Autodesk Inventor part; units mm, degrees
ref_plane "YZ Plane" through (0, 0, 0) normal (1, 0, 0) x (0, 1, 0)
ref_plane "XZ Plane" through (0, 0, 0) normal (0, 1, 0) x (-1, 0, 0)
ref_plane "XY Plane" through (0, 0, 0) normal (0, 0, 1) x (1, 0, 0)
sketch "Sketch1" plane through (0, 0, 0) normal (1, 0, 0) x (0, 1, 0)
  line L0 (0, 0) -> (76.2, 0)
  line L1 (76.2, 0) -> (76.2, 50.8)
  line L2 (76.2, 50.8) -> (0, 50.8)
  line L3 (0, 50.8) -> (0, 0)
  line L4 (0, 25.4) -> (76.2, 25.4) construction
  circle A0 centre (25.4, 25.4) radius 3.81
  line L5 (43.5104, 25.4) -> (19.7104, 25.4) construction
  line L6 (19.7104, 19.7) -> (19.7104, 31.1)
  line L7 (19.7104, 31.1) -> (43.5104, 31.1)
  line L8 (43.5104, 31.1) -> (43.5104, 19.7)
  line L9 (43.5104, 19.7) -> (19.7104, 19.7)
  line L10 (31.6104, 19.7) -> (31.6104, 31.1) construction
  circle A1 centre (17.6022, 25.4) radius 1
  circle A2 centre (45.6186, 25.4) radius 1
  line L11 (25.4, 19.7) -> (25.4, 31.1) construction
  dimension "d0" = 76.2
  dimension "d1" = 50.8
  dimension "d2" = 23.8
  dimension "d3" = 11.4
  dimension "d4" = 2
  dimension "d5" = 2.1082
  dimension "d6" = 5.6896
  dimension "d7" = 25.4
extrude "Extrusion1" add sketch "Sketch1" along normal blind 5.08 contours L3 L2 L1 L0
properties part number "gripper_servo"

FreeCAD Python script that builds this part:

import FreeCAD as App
import Part
import Sketcher
Q = App.Units.Quantity


def add_polygon(sketch, points):
    """Adds a closed chain of lines whose ends are joined by coincident constraints."""
    first, n = sketch.GeometryCount, len(points)
    for a, b in zip(points, points[1:] + points[:1]):
        sketch.addGeometry(Part.LineSegment(App.Vector(*a, 0), App.Vector(*b, 0)), False)
    for i in range(n):
        sketch.addConstraint(Sketcher.Constraint("Coincident", first + i, 2, first + (i + 1) % n, 1))

doc = App.newDocument("Part")
body = doc.addObject("PartDesign::Body", "Body")

sketch1 = body.newObject("Sketcher::SketchObject", "Sketch")
sketch1.AttachmentSupport = (doc.getObject("YZ_Plane"), [""])
sketch1.MapMode = "FlatFace"
add_polygon(sketch1, [(0, 50.8), (0, 0), (76.2, 0), (76.2, 50.8)])
sketch1.addGeometry(Part.Circle(App.Vector(17.6022, 25.4, 0), App.Vector(0, 0, 1), 1), False)
add_polygon(sketch1, [(43.5104, 19.7), (19.7104, 19.7), (19.7104, 31.1), (43.5104, 31.1)])
sketch1.addGeometry(Part.Circle(App.Vector(45.6186, 25.4, 0), App.Vector(0, 0, 1), 1), False)
sketch1.addConstraint([
    Sketcher.Constraint("Vertical", 0),
    Sketcher.Constraint("Horizontal", 1),
    Sketcher.Constraint("Vertical", 2),
    Sketcher.Constraint("Horizontal", 3),
    Sketcher.Constraint("Horizontal", 5),
    Sketcher.Constraint("Vertical", 6),
    Sketcher.Constraint("Horizontal", 7),
    Sketcher.Constraint("Vertical", 8),
    Sketcher.Constraint("Coincident", 0, 2, -1, 1),
    Sketcher.Constraint("Equal", 4, 9),
    Sketcher.Constraint("Horizontal", 4, 3, 9, 3),
    Sketcher.Constraint("DistanceX", 1, 1, 1, 2, Q("3 in")),
    Sketcher.Constraint("DistanceY", 0, 2, 0, 1, Q("2 in")),
    Sketcher.Constraint("DistanceY", -1, 1, 4, 3, Q("1 in")),
    Sketcher.Constraint("Diameter", 4, Q("2 mm")),
    Sketcher.Constraint("DistanceX", 5, 2, 5, 1, Q("0.937 in")),
    Sketcher.Constraint("DistanceX", 4, 3, 5, 2, Q("0.083 in")),
    Sketcher.Constraint("DistanceX", 7, 2, 9, 3, Q("0.083 in")),
    Sketcher.Constraint("DistanceY", 6, 1, 6, 2, Q("11.4 mm")),
    Sketcher.Constraint("DistanceX", -1, 1, 4, 3, Q("0.693 in")),
    Sketcher.Constraint("DistanceY", -1, 1, 5, 2, Q("0.7756 in")),
])
pad1 = body.newObject("PartDesign::Pad", "Pad")
pad1.Profile = sketch1
pad1.Length = Q("0.2 in")

doc.recompute()
